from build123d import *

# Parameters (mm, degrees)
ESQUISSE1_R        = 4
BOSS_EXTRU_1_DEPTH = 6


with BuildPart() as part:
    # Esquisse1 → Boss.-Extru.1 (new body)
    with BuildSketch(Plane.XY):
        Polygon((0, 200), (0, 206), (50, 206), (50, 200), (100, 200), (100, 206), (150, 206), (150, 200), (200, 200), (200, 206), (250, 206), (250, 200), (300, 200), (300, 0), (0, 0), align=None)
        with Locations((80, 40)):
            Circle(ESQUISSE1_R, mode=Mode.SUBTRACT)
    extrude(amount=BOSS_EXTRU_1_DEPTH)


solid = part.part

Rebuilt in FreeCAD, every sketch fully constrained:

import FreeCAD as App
import Part
import Sketcher

V = App.Vector
Q = App.Units.Quantity

doc = App.newDocument("Part")
body = doc.addObject("PartDesign::Body", "Body")

sketch1 = body.newObject("Sketcher::SketchObject", "Sketch")
sketch1.AttachmentSupport = (doc.getObject("XY_Plane"), [""])
sketch1.MapMode = "FlatFace"
sketch1.addGeometry([
    Part.LineSegment(V(0, 206, 0), V(0, 0, 0)),
    Part.LineSegment(V(0, 0, 0), V(300, 0, 0)),
    Part.LineSegment(V(300, 0, 0), V(300, 200, 0)),
    Part.LineSegment(V(300, 200, 0), V(250, 200, 0)),
    Part.LineSegment(V(250, 200, 0), V(250, 206, 0)),
    Part.LineSegment(V(250, 206, 0), V(200, 206, 0)),
    Part.LineSegment(V(200, 206, 0), V(200, 200, 0)),
    Part.LineSegment(V(200, 200, 0), V(150, 200, 0)),
    Part.LineSegment(V(150, 200, 0), V(150, 206, 0)),
    Part.LineSegment(V(150, 206, 0), V(100, 206, 0)),
    Part.LineSegment(V(100, 206, 0), V(100, 200, 0)),
    Part.LineSegment(V(100, 200, 0), V(50, 200, 0)),
    Part.LineSegment(V(50, 200, 0), V(50, 206, 0)),
    Part.LineSegment(V(50, 206, 0), V(0, 206, 0)),
    Part.Circle(V(80, 40, 0), V(0, 0, 1), 4),
], False)
sketch1.addConstraint([
    Sketcher.Constraint("Coincident", 0, 2, 1, 1),
    Sketcher.Constraint("Coincident", 1, 2, 2, 1),
    Sketcher.Constraint("Coincident", 2, 2, 3, 1),
    Sketcher.Constraint("Coincident", 3, 2, 4, 1),
    Sketcher.Constraint("Coincident", 4, 2, 5, 1),
    Sketcher.Constraint("Coincident", 5, 2, 6, 1),
    Sketcher.Constraint("Coincident", 6, 2, 7, 1),
    Sketcher.Constraint("Coincident", 7, 2, 8, 1),
    Sketcher.Constraint("Coincident", 8, 2, 9, 1),
    Sketcher.Constraint("Coincident", 9, 2, 10, 1),
    Sketcher.Constraint("Coincident", 10, 2, 11, 1),
    Sketcher.Constraint("Coincident", 11, 2, 12, 1),
    Sketcher.Constraint("Coincident", 12, 2, 13, 1),
    Sketcher.Constraint("Coincident", 13, 2, 0, 1),
    Sketcher.Constraint("Vertical", 0),
    Sketcher.Constraint("Horizontal", 1),
    Sketcher.Constraint("Vertical", 2),
    Sketcher.Constraint("Horizontal", 3),
    Sketcher.Constraint("Vertical", 4),
    Sketcher.Constraint("Horizontal", 5),
    Sketcher.Constraint("Vertical", 6),
    Sketcher.Constraint("Horizontal", 7),
    Sketcher.Constraint("Vertical", 8),
    Sketcher.Constraint("Horizontal", 9),
    Sketcher.Constraint("Vertical", 10),
    Sketcher.Constraint("Horizontal", 11),
    Sketcher.Constraint("Vertical", 12),
    Sketcher.Constraint("Horizontal", 13),
    Sketcher.Constraint("Coincident", 0, 2, -1, 1),
    Sketcher.Constraint("Horizontal", 3, 2, 6, 2),
    Sketcher.Constraint("Horizontal", 5, 2, 8, 2),
    Sketcher.Constraint("Horizontal", 7, 2, 10, 2),
    Sketcher.Constraint("Horizontal", 9, 2, 12, 2),
    Sketcher.Constraint("Equal", 3, 5),
    Sketcher.Constraint("Equal", 5, 7),
    Sketcher.Constraint("Equal", 7, 9),
    Sketcher.Constraint("Equal", 9, 11),
    Sketcher.Constraint("Equal", 11, 13),
    Sketcher.Constraint("Diameter", 14, Q("8 mm")),
    Sketcher.Constraint("DistanceX", 1, 1, 1, 2, Q("300 mm")),
    Sketcher.Constraint("DistanceY", 0, 2, 0, 1, Q("206 mm")),
    Sketcher.Constraint("DistanceY", 2, 1, 2, 2, Q("200 mm")),
    Sketcher.Constraint("DistanceX", -1, 1, 14, 3, Q("80 mm")),
    Sketcher.Constraint("DistanceY", -1, 1, 14, 3, Q("40 mm")),
])
pad1 = body.newObject("PartDesign::Pad", "Pad")
pad1.Profile = sketch1
pad1.Length = 6

doc.recompute()
